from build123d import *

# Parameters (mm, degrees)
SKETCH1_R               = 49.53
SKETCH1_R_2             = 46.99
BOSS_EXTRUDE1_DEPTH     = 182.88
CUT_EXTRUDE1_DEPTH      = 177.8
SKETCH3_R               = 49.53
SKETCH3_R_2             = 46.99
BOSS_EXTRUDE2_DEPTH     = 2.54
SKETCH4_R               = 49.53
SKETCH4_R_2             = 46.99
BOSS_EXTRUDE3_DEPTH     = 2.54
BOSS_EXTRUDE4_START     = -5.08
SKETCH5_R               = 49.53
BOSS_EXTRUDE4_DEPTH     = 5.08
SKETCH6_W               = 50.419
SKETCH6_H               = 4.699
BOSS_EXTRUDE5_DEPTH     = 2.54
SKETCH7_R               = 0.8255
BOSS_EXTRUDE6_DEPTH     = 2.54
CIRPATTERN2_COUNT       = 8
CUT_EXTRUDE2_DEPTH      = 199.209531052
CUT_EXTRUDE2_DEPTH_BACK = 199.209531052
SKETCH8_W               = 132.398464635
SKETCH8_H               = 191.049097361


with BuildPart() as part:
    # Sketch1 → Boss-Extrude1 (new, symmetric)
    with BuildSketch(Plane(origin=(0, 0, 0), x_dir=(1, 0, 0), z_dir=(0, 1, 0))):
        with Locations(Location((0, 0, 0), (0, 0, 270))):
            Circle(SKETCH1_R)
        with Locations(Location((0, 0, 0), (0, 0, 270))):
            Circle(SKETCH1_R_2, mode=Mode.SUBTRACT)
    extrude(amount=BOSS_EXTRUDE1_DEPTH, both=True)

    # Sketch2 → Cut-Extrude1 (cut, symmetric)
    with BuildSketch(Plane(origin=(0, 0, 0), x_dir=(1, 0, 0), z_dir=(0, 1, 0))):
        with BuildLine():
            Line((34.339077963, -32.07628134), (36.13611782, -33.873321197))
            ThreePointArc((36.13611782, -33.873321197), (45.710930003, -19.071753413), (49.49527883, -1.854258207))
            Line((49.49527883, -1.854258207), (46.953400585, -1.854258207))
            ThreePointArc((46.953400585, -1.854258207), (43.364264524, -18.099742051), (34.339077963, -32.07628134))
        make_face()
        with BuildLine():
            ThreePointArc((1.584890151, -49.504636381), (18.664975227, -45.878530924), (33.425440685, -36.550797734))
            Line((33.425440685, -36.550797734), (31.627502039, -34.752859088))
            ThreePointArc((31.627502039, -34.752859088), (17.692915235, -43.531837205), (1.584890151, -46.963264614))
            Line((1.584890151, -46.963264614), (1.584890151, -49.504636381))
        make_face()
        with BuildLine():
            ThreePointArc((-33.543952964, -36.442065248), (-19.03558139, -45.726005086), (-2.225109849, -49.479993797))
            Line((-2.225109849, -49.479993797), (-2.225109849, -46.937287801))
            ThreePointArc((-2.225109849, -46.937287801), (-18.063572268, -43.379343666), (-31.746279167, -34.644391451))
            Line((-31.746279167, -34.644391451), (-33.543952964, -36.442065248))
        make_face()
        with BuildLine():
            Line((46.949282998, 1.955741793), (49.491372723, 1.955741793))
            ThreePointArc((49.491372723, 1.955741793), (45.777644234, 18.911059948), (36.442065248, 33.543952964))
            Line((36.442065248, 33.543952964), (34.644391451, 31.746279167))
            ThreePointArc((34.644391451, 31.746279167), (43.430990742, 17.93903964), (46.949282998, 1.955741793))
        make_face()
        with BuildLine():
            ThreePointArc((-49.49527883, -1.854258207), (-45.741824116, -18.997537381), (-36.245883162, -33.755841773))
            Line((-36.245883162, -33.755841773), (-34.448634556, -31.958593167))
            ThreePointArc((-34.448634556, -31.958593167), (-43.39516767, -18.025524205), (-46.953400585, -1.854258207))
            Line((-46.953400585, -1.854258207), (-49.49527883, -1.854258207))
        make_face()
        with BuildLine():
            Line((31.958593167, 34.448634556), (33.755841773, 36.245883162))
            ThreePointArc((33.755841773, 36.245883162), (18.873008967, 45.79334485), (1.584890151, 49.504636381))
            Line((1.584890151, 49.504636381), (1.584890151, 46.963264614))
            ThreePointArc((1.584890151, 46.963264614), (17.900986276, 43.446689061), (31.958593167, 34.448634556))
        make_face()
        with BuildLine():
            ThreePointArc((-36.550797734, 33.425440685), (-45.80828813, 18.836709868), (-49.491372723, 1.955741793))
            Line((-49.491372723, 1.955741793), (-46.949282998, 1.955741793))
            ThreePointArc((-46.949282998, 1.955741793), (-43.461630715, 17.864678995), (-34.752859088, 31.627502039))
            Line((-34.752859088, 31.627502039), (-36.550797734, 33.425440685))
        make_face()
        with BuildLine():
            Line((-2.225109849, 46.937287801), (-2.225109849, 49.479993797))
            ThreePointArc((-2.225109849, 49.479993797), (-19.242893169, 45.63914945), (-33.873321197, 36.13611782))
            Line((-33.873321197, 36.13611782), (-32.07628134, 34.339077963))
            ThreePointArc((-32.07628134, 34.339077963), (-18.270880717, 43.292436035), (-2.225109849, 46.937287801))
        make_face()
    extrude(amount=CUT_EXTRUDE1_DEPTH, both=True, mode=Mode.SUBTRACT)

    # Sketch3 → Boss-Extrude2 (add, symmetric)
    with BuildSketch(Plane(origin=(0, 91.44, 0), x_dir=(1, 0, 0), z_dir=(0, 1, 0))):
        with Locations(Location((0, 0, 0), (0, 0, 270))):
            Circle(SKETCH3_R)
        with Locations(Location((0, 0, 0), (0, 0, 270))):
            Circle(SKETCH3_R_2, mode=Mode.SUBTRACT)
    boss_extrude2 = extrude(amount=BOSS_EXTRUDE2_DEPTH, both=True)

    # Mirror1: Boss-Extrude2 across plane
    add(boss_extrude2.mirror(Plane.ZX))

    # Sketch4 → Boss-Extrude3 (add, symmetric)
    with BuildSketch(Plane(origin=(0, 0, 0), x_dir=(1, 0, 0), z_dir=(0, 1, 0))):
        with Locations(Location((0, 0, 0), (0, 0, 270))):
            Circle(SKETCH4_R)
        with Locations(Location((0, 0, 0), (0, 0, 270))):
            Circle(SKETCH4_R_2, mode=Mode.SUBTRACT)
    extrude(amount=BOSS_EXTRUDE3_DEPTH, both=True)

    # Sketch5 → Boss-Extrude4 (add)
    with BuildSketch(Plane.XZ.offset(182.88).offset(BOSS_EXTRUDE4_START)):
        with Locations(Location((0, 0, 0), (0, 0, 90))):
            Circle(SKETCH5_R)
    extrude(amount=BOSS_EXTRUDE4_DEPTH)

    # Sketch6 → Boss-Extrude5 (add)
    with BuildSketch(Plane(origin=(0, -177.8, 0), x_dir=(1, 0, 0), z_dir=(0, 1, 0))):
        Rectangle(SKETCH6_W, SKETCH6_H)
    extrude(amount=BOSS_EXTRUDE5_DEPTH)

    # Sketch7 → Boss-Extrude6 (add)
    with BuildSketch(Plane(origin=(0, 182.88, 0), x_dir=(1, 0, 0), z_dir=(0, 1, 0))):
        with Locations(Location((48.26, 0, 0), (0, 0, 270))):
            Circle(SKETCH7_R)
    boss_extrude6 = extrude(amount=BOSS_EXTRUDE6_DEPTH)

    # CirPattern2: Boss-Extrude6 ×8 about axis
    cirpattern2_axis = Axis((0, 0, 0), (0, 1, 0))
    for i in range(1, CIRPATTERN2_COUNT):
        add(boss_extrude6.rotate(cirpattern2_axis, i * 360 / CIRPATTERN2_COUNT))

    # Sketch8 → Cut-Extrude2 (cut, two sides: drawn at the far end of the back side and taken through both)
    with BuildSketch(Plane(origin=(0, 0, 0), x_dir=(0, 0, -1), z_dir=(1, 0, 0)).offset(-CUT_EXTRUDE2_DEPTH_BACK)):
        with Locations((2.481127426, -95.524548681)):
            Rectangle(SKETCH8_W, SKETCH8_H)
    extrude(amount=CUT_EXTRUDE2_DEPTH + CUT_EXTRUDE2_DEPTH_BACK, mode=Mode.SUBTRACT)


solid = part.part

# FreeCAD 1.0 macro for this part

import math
import FreeCAD as App
import Part
import Sketcher

V = App.Vector
Q = App.Units.Quantity

doc = App.newDocument("Part")
body = doc.addObject("PartDesign::Body", "Body")

sketch1 = body.newObject("Sketcher::SketchObject", "Sketch")
sketch1.AttachmentSupport = (doc.getObject("XZ_Plane"), [""])
sketch1.MapMode = "FlatFace"
sketch1.addGeometry(Part.Circle(V(0, 0, 0), V(0, 0, 1), 50), False)
sketch1.addGeometry(Part.Circle(V(0, 0, 0), V(0, 0, 1), 47), False)
sketch1.addConstraint(Sketcher.Constraint("Coincident", 0, 3, -1, 1))
sketch1.addConstraint(Sketcher.Constraint("Coincident", 1, 3, -1, 1))
sketch1.addConstraint(Sketcher.Constraint("Diameter", 0, Q("3.9 in")))
sketch1.addConstraint(Sketcher.Constraint("Diameter", 1, Q("3.7 in")))
pad1 = body.newObject("PartDesign::Pad", "Pad")
pad1.Profile = sketch1
pad1.Length = Q("14.4 in")
pad1.Midplane = True

sketch2 = body.newObject("Sketcher::SketchObject", "Sketch001")
sketch2.AttachmentSupport = (doc.getObject("XZ_Plane"), [""])
sketch2.MapMode = "FlatFace"
sketch2.addGeometry(Part.LineSegment(V(34.3, 32.1, 0), V(36.1, 33.9, 0)), False)
sketch2.addGeometry(Part.ArcOfCircle(Part.Circle(V(0, 0, 0), V(0, 0, 1), 49.5), math.radians(2), math.radians(43)), False)
sketch2.addGeometry(Part.LineSegment(V(49.5, 1.9, 0), V(47, 1.9, 0)), False)
sketch2.addGeometry(Part.ArcOfCircle(Part.Circle(V(0, 0, 0), V(0, 0, 1), 47), math.radians(2), math.radians(43)), False)
sketch2.addGeometry(Part.ArcOfCircle(Part.Circle(V(0, 0, 0), V(0, 0, 1), 49.5), math.radians(48), math.radians(88)), False)
sketch2.addGeometry(Part.LineSegment(V(33.4, 36.6, 0), V(31.6, 34.8, 0)), False)
sketch2.addGeometry(Part.ArcOfCircle(Part.Circle(V(0, 0, 0), V(0, 0, 1), 47), math.radians(48), math.radians(88)), False)
sketch2.addGeometry(Part.LineSegment(V(1.6, 47, 0), V(1.6, 49.5, 0)), False)
sketch2.addGeometry(Part.ArcOfCircle(Part.Circle(V(0, 0, 0), V(0, 0, 1), 49.5), math.radians(93), math.radians(133)), False)
sketch2.addGeometry(Part.LineSegment(V(-2.2, 49.5, 0), V(-2.2, 46.9, 0)), False)
sketch2.addGeometry(Part.ArcOfCircle(Part.Circle(V(0, 0, 0), V(0, 0, 1), 47), math.radians(93), math.radians(133)), False)
sketch2.addGeometry(Part.LineSegment(V(-31.7, 34.6, 0), V(-33.5, 36.4, 0)), False)
sketch2.addGeometry(Part.LineSegment(V(46.9, -2, 0), V(49.5, -2, 0)), False)
sketch2.addGeometry(Part.ArcOfCircle(Part.Circle(V(0, 0, 0), V(0, 0, 1), 49.5), math.radians(-43), math.radians(-2)), False)
sketch2.addGeometry(Part.LineSegment(V(36.4, -33.5, 0), V(34.6, -31.7, 0)), False)
sketch2.addGeometry(Part.ArcOfCircle(Part.Circle(V(0, 0, 0), V(0, 0, 1), 47), math.radians(-43), math.radians(-2)), False)
sketch2.addGeometry(Part.ArcOfCircle(Part.Circle(V(0, 0, 0), V(0, 0, 1), 49.5), math.radians(137), math.radians(178)), False)
sketch2.addGeometry(Part.LineSegment(V(-36.2, 33.8, 0), V(-34.4, 32, 0)), False)
sketch2.addGeometry(Part.ArcOfCircle(Part.Circle(V(0, 0, 0), V(0, 0, 1), 47), math.radians(137), math.radians(178)), False)
sketch2.addGeometry(Part.LineSegment(V(-47, 1.9, 0), V(-49.5, 1.9, 0)), False)
sketch2.addGeometry(Part.LineSegment(V(32, -34.4, 0), V(33.8, -36.2, 0)), False)
sketch2.addGeometry(Part.ArcOfCircle(Part.Circle(V(0, 0, 0), V(0, 0, 1), 49.5), math.radians(-88), math.radians(-47)), False)
sketch2.addGeometry(Part.LineSegment(V(1.6, -49.5, 0), V(1.6, -47, 0)), False)
sketch2.addGeometry(Part.ArcOfCircle(Part.Circle(V(0, 0, 0), V(0, 0, 1), 47), math.radians(-88), math.radians(-47)), False)
sketch2.addGeometry(Part.ArcOfCircle(Part.Circle(V(0, 0, 0), V(0, 0, 1), 49.5), math.radians(-178), math.radians(-138)), False)
sketch2.addGeometry(Part.LineSegment(V(-49.5, -2, 0), V(-46.9, -2, 0)), False)
sketch2.addGeometry(Part.ArcOfCircle(Part.Circle(V(0, 0, 0), V(0, 0, 1), 47), math.radians(-178), math.radians(-138)), False)
sketch2.addGeometry(Part.LineSegment(V(-34.8, -31.6, 0), V(-36.6, -33.4, 0)), False)
sketch2.addGeometry(Part.LineSegment(V(-2.2, -46.9, 0), V(-2.2, -49.5, 0)), False)
sketch2.addGeometry(Part.ArcOfCircle(Part.Circle(V(0, 0, 0), V(0, 0, 1), 49.5), math.radians(-133), math.radians(-93)), False)
sketch2.addGeometry(Part.LineSegment(V(-33.9, -36.1, 0), V(-32.1, -34.3, 0)), False)
sketch2.addGeometry(Part.ArcOfCircle(Part.Circle(V(0, 0, 0), V(0, 0, 1), 47), math.radians(-133), math.radians(-93)), False)
sketch2.addConstraint(Sketcher.Constraint("Coincident", 0, 2, 1, 2))
sketch2.addConstraint(Sketcher.Constraint("Coincident", 1, 1, 2, 1))
sketch2.addConstraint(Sketcher.Constraint("Coincident", 2, 2, 3, 1))
sketch2.addConstraint(Sketcher.Constraint("Coincident", 3, 2, 0, 1))
sketch2.addConstraint(Sketcher.Constraint("Coincident", 4, 1, 5, 1))
sketch2.addConstraint(Sketcher.Constraint("Coincident", 5, 2, 6, 1))
sketch2.addConstraint(Sketcher.Constraint("Coincident", 6, 2, 7, 1))
sketch2.addConstraint(Sketcher.Constraint("Coincident", 7, 2, 4, 2))
sketch2.addConstraint(Sketcher.Constraint("Coincident", 8, 1, 9, 1))
sketch2.addConstraint(Sketcher.Constraint("Coincident", 9, 2, 10, 1))
sketch2.addConstraint(Sketcher.Constraint("Coincident", 10, 2, 11, 1))
sketch2.addConstraint(Sketcher.Constraint("Coincident", 11, 2, 8, 2))
sketch2.addConstraint(Sketcher.Constraint("Coincident", 12, 2, 13, 2))
sketch2.addConstraint(Sketcher.Constraint("Coincident", 13, 1, 14, 1))
sketch2.addConstraint(Sketcher.Constraint("Coincident", 14, 2, 15, 1))
sketch2.addConstraint(Sketcher.Constraint("Coincident", 15, 2, 12, 1))
sketch2.addConstraint(Sketcher.Constraint("Coincident", 16, 1, 17, 1))
sketch2.addConstraint(Sketcher.Constraint("Coincident", 17, 2, 18, 1))
sketch2.addConstraint(Sketcher.Constraint("Coincident", 18, 2, 19, 1))
sketch2.addConstraint(Sketcher.Constraint("Coincident", 19, 2, 16, 2))
sketch2.addConstraint(Sketcher.Constraint("Coincident", 20, 2, 21, 2))
sketch2.addConstraint(Sketcher.Constraint("Coincident", 21, 1, 22, 1))
sketch2.addConstraint(Sketcher.Constraint("Coincident", 22, 2, 23, 1))
sketch2.addConstraint(Sketcher.Constraint("Coincident", 23, 2, 20, 1))
sketch2.addConstraint(Sketcher.Constraint("Coincident", 24, 1, 25, 1))
sketch2.addConstraint(Sketcher.Constraint("Coincident", 25, 2, 26, 1))
sketch2.addConstraint(Sketcher.Constraint("Coincident", 26, 2, 27, 1))
sketch2.addConstraint(Sketcher.Constraint("Coincident", 27, 2, 24, 2))
sketch2.addConstraint(Sketcher.Constraint("Coincident", 28, 2, 29, 2))
sketch2.addConstraint(Sketcher.Constraint("Coincident", 29, 1, 30, 1))
sketch2.addConstraint(Sketcher.Constraint("Coincident", 30, 2, 31, 1))
sketch2.addConstraint(Sketcher.Constraint("Coincident", 31, 2, 28, 1))
sketch2.addConstraint(Sketcher.Constraint("Horizontal", 2))
sketch2.addConstraint(Sketcher.Constraint("Vertical", 7))
sketch2.addConstraint(Sketcher.Constraint("Vertical", 9))
sketch2.addConstraint(Sketcher.Constraint("Horizontal", 12))
sketch2.addConstraint(Sketcher.Constraint("Horizontal", 19))
sketch2.addConstraint(Sketcher.Constraint("Vertical", 22))
sketch2.addConstraint(Sketcher.Constraint("Horizontal", 25))
sketch2.addConstraint(Sketcher.Constraint("Vertical", 28))
sketch2.addConstraint(Sketcher.Constraint("Coincident", 1, 3, -1, 1))
sketch2.addConstraint(Sketcher.Constraint("Coincident", 3, 3, -1, 1))
sketch2.addConstraint(Sketcher.Constraint("Coincident", 4, 3, -1, 1))
sketch2.addConstraint(Sketcher.Constraint("Coincident", 6, 3, -1, 1))
sketch2.addConstraint(Sketcher.Constraint("Coincident", 8, 3, -1, 1))
sketch2.addConstraint(Sketcher.Constraint("Coincident", 10, 3, -1, 1))
sketch2.addConstraint(Sketcher.Constraint("Coincident", 13, 3, -1, 1))
sketch2.addConstraint(Sketcher.Constraint("Coincident", 15, 3, -1, 1))
sketch2.addConstraint(Sketcher.Constraint("Coincident", 16, 3, -1, 1))
sketch2.addConstraint(Sketcher.Constraint("Coincident", 18, 3, -1, 1))
sketch2.addConstraint(Sketcher.Constraint("Coincident", 21, 3, -1, 1))
sketch2.addConstraint(Sketcher.Constraint("Coincident", 23, 3, -1, 1))
sketch2.addConstraint(Sketcher.Constraint("Coincident", 24, 3, -1, 1))
sketch2.addConstraint(Sketcher.Constraint("Coincident", 26, 3, -1, 1))
sketch2.addConstraint(Sketcher.Constraint("Coincident", 29, 3, -1, 1))
sketch2.addConstraint(Sketcher.Constraint("Coincident", 31, 3, -1, 1))
sketch2.addConstraint(Sketcher.Constraint("Equal", 1, 4))
sketch2.addConstraint(Sketcher.Constraint("Equal", 3, 6))
sketch2.addConstraint(Sketcher.Constraint("Equal", 4, 8))
sketch2.addConstraint(Sketcher.Constraint("Equal", 6, 10))
sketch2.addConstraint(Sketcher.Constraint("Equal", 8, 13))
sketch2.addConstraint(Sketcher.Constraint("Equal", 10, 15))
sketch2.addConstraint(Sketcher.Constraint("Equal", 13, 16))
sketch2.addConstraint(Sketcher.Constraint("Equal", 15, 18))
sketch2.addConstraint(Sketcher.Constraint("Equal", 16, 21))
sketch2.addConstraint(Sketcher.Constraint("Equal", 18, 23))
sketch2.addConstraint(Sketcher.Constraint("Equal", 21, 24))
sketch2.addConstraint(Sketcher.Constraint("Equal", 23, 26))
sketch2.addConstraint(Sketcher.Constraint("Equal", 24, 29))
sketch2.addConstraint(Sketcher.Constraint("Equal", 26, 31))
sketch2.addConstraint(Sketcher.Constraint("Parallel", 0, 5))
sketch2.addConstraint(Sketcher.Constraint("Perpendicular", 5, 11))
sketch2.addConstraint(Sketcher.Constraint("Parallel", 11, 14))
sketch2.addConstraint(Sketcher.Constraint("Parallel", 14, 17))
sketch2.addConstraint(Sketcher.Constraint("Parallel", 17, 20))
sketch2.addConstraint(Sketcher.Constraint("Perpendicular", 20, 27))
sketch2.addConstraint(Sketcher.Constraint("Parallel", 27, 30))
sketch2.addConstraint(Sketcher.Constraint("Horizontal", 2, 2, 18, 2))
sketch2.addConstraint(Sketcher.Constraint("Horizontal", 15, 2, 24, 1))
sketch2.addConstraint(Sketcher.Constraint("Vertical", 7, 2, 21, 1))
sketch2.addConstraint(Sketcher.Constraint("Vertical", 9, 2, 28, 2))
sketch2.addConstraint(Sketcher.Constraint("Equal", 11, 14))
sketch2.addConstraint(Sketcher.Constraint("Radius", 1, Q("1.95 in")))
sketch2.addConstraint(Sketcher.Constraint("Radius", 3, Q("1.85 in")))
sketch2.addConstraint(Sketcher.Constraint("Angle", 0, Q("45 deg")))
sketch2.addConstraint(Sketcher.Constraint("DistanceX", 8, 1, 7, 2, Q("0.15 in")))
sketch2.addConstraint(Sketcher.Constraint("DistanceY", 12, 2, 1, 1, Q("0.15 in")))
sketch2.addConstraint(Sketcher.Constraint("DistanceX", -1, 1, 2, 2, Q("46.953401 mm")))
sketch2.addConstraint(Sketcher.Constraint("DistanceX", 3, 2, 1, 1, Q("15.156201 mm")))
sketch2.addConstraint(Sketcher.Constraint("DistanceX", 5, 2, 2, 2, Q("15.325899 mm")))
sketch2.addConstraint(Sketcher.Constraint("DistanceY", 11, 2, 6, 2, Q("10.521199 mm")))
sketch2.addConstraint(Sketcher.Constraint("DistanceY", 17, 2, 10, 2, Q("2.685798 mm")))
sketch2.addConstraint(Sketcher.Constraint("DistanceY", 17, 2, 8, 1, Q("17.521401 mm")))
sketch2.addConstraint(Sketcher.Constraint("DistanceX", 23, 2, 14, 2, Q("2.685798 mm")))
sketch2.addConstraint(Sketcher.Constraint("DistanceY", 27, 2, 25, 2, Q("31.469699 mm")))
sketch2.addConstraint(Sketcher.Constraint("DistanceX", 25, 2, 30, 2, Q("14.873002 mm")))
pocket1 = body.newObject("PartDesign::Pocket", "Pocket")
pocket1.Profile = sketch2
pocket1.Length = Q("14 in")
pocket1.Midplane = True

sketch3 = body.newObject("Sketcher::SketchObject", "Sketch002")
sketch3.AttachmentSupport = (doc.getObject("XZ_Plane"), [""])
sketch3.MapMode = "FlatFace"
sketch3.AttachmentOffset = App.Placement(V(0, 0, -3.6 * 25.4), App.Rotation())
sketch3.addGeometry(Part.Circle(V(0, 0, 0), V(0, 0, 1), 50), False)
sketch3.addGeometry(Part.Circle(V(0, 0, 0), V(0, 0, 1), 47), False)
sketch3.addConstraint(Sketcher.Constraint("Coincident", 0, 3, -1, 1))
sketch3.addConstraint(Sketcher.Constraint("Coincident", 1, 3, -1, 1))
sketch3.addConstraint(Sketcher.Constraint("Diameter", 0, Q("3.9 in")))
sketch3.addConstraint(Sketcher.Constraint("Diameter", 1, Q("3.7 in")))
pad2 = body.newObject("PartDesign::Pad", "Pad001")
pad2.Profile = sketch3
pad2.Length = Q("0.2 in")
pad2.Midplane = True
doc.recompute()

mirrored = body.newObject("PartDesign::Mirrored", "Mirrored")
mirrored.Originals = [pad2]
mirrored.MirrorPlane = (doc.getObject("XZ_Plane"), [""])
body.Tip = mirrored

sketch4 = body.newObject("Sketcher::SketchObject", "Sketch003")
sketch4.AttachmentSupport = (doc.getObject("XZ_Plane"), [""])
sketch4.MapMode = "FlatFace"
sketch4.addGeometry(Part.Circle(V(0, 0, 0), V(0, 0, 1), 50), False)
sketch4.addGeometry(Part.Circle(V(0, 0, 0), V(0, 0, 1), 47), False)
sketch4.addConstraint(Sketcher.Constraint("Coincident", 0, 3, -1, 1))
sketch4.addConstraint(Sketcher.Constraint("Coincident", 1, 3, -1, 1))
sketch4.addConstraint(Sketcher.Constraint("Diameter", 0, Q("3.9 in")))
sketch4.addConstraint(Sketcher.Constraint("Diameter", 1, Q("3.7 in")))
pad3 = body.newObject("PartDesign::Pad", "Pad002")
pad3.Profile = sketch4
pad3.Length = Q("0.2 in")
pad3.Midplane = True

sketch5 = body.newObject("Sketcher::SketchObject", "Sketch004")
sketch5.AttachmentSupport = (doc.getObject("XZ_Plane"), [""])
sketch5.MapMode = "FlatFace"
sketch5.AttachmentOffset = App.Placement(V(0, 0, 7 * 25.4), App.Rotation())
sketch5.addGeometry(Part.Circle(V(0, 0, 0), V(0, 0, 1), 50), False)
sketch5.addConstraint(Sketcher.Constraint("Coincident", 0, 3, -1, 1))
sketch5.addConstraint(Sketcher.Constraint("Diameter", 0, Q("3.9 in")))
pad4 = body.newObject("PartDesign::Pad", "Pad003")
pad4.Profile = sketch5
pad4.Length = Q("0.2 in")

sketch6 = body.newObject("Sketcher::SketchObject", "Sketch005")
sketch6.AttachmentSupport = (doc.getObject("XZ_Plane"), [""])
sketch6.MapMode = "FlatFace"
sketch6.AttachmentOffset = App.Placement(V(0, 0, 7 * 25.4), App.Rotation())
sketch6.addGeometry(Part.LineSegment(V(-25.2, -2.3, 0), V(-25.2, 2.3, 0)), False)
sketch6.addGeometry(Part.LineSegment(V(-25.2, 2.3, 0), V(25.2, 2.3, 0)), False)
sketch6.addGeometry(Part.LineSegment(V(25.2, 2.3, 0), V(25.2, -2.3, 0)), False)
sketch6.addGeometry(Part.LineSegment(V(25.2, -2.3, 0), V(-25.2, -2.3, 0)), False)
sketch6.addConstraint(Sketcher.Constraint("Coincident", 0, 2, 1, 1))
sketch6.addConstraint(Sketcher.Constraint("Coincident", 1, 2, 2, 1))
sketch6.addConstraint(Sketcher.Constraint("Coincident", 2, 2, 3, 1))
sketch6.addConstraint(Sketcher.Constraint("Coincident", 3, 2, 0, 1))
sketch6.addConstraint(Sketcher.Constraint("Vertical", 0))
sketch6.addConstraint(Sketcher.Constraint("Horizontal", 1))
sketch6.addConstraint(Sketcher.Constraint("Vertical", 2))
sketch6.addConstraint(Sketcher.Constraint("Horizontal", 3))
sketch6.addConstraint(Sketcher.Constraint("Symmetric", 0, 2, 2, 2, -1, 1))
sketch6.addConstraint(Sketcher.Constraint("DistanceX", 1, 1, 1, 2, Q("1.985 in")))
sketch6.addConstraint(Sketcher.Constraint("DistanceY", 0, 1, 0, 2, Q("0.185 in")))
pad5 = body.newObject("PartDesign::Pad", "Pad004")
pad5.Profile = sketch6
pad5.Length = Q("0.1 in")
pad5.Reversed = True

sketch7 = body.newObject("Sketcher::SketchObject", "Sketch006")
sketch7.AttachmentSupport = (doc.getObject("XZ_Plane"), [""])
sketch7.MapMode = "FlatFace"
sketch7.AttachmentOffset = App.Placement(V(0, 0, -7.2 * 25.4), App.Rotation())
sketch7.addGeometry(Part.Circle(V(48.3, 0, 0), V(0, 0, 1), 0.8), False)
sketch7.addConstraint(Sketcher.Constraint("PointOnObject", 0, 3, -1))
sketch7.addConstraint(Sketcher.Constraint("Diameter", 0, Q("0.065 in")))
sketch7.addConstraint(Sketcher.Constraint("DistanceX", -1, 1, 0, 3, Q("1.9 in")))
pad6 = body.newObject("PartDesign::Pad", "Pad005")
pad6.Profile = sketch7
pad6.Length = Q("0.1 in")
pad6.Reversed = True
doc.recompute()

polarpattern = body.newObject("PartDesign::PolarPattern", "PolarPattern")
polarpattern.Originals = [pad6]
polarpattern.Axis = (doc.getObject("Y_Axis"), [""])
polarpattern.Angle = 360
polarpattern.Occurrences = 8
body.Tip = polarpattern

sketch8 = body.newObject("Sketcher::SketchObject", "Sketch007")
sketch8.AttachmentSupport = (doc.getObject("YZ_Plane"), [""])
sketch8.MapMode = "FlatFace"
sketch8.addGeometry(Part.LineSegment(V(0, 64, 0), V(-191, 64, 0)), False)
sketch8.addGeometry(Part.LineSegment(V(-191, 64, 0), V(-191, -69, 0)), False)
sketch8.addGeometry(Part.LineSegment(V(-191, -69, 0), V(0, -69, 0)), False)
sketch8.addGeometry(Part.LineSegment(V(0, -69, 0), V(0, 64, 0)), False)
sketch8.addConstraint(Sketcher.Constraint("Coincident", 0, 2, 1, 1))
sketch8.addConstraint(Sketcher.Constraint("Coincident", 1, 2, 2, 1))
sketch8.addConstraint(Sketcher.Constraint("Coincident", 2, 2, 3, 1))
sketch8.addConstraint(Sketcher.Constraint("Coincident", 3, 2, 0, 1))
sketch8.addConstraint(Sketcher.Constraint("Horizontal", 0))
sketch8.addConstraint(Sketcher.Constraint("Vertical", 1))
sketch8.addConstraint(Sketcher.Constraint("Horizontal", 2))
sketch8.addConstraint(Sketcher.Constraint("Vertical", 3))
sketch8.addConstraint(Sketcher.Constraint("PointOnObject", 2, 2, -2))
sketch8.addConstraint(Sketcher.Constraint("DistanceX", 0, 2, 0, 1, Q("191.049097 mm")))
sketch8.addConstraint(Sketcher.Constraint("DistanceY", 1, 2, 1, 1, Q("132.398465 mm")))
sketch8.addConstraint(Sketcher.Constraint("DistanceY", 1, 2, -1, 1, Q("68.68036 mm")))
pocket2 = body.newObject("PartDesign::Pocket", "Pocket001")
pocket2.Profile = sketch8
pocket2.Type = "ThroughAll"
pocket2.Midplane = True

doc.recompute()
